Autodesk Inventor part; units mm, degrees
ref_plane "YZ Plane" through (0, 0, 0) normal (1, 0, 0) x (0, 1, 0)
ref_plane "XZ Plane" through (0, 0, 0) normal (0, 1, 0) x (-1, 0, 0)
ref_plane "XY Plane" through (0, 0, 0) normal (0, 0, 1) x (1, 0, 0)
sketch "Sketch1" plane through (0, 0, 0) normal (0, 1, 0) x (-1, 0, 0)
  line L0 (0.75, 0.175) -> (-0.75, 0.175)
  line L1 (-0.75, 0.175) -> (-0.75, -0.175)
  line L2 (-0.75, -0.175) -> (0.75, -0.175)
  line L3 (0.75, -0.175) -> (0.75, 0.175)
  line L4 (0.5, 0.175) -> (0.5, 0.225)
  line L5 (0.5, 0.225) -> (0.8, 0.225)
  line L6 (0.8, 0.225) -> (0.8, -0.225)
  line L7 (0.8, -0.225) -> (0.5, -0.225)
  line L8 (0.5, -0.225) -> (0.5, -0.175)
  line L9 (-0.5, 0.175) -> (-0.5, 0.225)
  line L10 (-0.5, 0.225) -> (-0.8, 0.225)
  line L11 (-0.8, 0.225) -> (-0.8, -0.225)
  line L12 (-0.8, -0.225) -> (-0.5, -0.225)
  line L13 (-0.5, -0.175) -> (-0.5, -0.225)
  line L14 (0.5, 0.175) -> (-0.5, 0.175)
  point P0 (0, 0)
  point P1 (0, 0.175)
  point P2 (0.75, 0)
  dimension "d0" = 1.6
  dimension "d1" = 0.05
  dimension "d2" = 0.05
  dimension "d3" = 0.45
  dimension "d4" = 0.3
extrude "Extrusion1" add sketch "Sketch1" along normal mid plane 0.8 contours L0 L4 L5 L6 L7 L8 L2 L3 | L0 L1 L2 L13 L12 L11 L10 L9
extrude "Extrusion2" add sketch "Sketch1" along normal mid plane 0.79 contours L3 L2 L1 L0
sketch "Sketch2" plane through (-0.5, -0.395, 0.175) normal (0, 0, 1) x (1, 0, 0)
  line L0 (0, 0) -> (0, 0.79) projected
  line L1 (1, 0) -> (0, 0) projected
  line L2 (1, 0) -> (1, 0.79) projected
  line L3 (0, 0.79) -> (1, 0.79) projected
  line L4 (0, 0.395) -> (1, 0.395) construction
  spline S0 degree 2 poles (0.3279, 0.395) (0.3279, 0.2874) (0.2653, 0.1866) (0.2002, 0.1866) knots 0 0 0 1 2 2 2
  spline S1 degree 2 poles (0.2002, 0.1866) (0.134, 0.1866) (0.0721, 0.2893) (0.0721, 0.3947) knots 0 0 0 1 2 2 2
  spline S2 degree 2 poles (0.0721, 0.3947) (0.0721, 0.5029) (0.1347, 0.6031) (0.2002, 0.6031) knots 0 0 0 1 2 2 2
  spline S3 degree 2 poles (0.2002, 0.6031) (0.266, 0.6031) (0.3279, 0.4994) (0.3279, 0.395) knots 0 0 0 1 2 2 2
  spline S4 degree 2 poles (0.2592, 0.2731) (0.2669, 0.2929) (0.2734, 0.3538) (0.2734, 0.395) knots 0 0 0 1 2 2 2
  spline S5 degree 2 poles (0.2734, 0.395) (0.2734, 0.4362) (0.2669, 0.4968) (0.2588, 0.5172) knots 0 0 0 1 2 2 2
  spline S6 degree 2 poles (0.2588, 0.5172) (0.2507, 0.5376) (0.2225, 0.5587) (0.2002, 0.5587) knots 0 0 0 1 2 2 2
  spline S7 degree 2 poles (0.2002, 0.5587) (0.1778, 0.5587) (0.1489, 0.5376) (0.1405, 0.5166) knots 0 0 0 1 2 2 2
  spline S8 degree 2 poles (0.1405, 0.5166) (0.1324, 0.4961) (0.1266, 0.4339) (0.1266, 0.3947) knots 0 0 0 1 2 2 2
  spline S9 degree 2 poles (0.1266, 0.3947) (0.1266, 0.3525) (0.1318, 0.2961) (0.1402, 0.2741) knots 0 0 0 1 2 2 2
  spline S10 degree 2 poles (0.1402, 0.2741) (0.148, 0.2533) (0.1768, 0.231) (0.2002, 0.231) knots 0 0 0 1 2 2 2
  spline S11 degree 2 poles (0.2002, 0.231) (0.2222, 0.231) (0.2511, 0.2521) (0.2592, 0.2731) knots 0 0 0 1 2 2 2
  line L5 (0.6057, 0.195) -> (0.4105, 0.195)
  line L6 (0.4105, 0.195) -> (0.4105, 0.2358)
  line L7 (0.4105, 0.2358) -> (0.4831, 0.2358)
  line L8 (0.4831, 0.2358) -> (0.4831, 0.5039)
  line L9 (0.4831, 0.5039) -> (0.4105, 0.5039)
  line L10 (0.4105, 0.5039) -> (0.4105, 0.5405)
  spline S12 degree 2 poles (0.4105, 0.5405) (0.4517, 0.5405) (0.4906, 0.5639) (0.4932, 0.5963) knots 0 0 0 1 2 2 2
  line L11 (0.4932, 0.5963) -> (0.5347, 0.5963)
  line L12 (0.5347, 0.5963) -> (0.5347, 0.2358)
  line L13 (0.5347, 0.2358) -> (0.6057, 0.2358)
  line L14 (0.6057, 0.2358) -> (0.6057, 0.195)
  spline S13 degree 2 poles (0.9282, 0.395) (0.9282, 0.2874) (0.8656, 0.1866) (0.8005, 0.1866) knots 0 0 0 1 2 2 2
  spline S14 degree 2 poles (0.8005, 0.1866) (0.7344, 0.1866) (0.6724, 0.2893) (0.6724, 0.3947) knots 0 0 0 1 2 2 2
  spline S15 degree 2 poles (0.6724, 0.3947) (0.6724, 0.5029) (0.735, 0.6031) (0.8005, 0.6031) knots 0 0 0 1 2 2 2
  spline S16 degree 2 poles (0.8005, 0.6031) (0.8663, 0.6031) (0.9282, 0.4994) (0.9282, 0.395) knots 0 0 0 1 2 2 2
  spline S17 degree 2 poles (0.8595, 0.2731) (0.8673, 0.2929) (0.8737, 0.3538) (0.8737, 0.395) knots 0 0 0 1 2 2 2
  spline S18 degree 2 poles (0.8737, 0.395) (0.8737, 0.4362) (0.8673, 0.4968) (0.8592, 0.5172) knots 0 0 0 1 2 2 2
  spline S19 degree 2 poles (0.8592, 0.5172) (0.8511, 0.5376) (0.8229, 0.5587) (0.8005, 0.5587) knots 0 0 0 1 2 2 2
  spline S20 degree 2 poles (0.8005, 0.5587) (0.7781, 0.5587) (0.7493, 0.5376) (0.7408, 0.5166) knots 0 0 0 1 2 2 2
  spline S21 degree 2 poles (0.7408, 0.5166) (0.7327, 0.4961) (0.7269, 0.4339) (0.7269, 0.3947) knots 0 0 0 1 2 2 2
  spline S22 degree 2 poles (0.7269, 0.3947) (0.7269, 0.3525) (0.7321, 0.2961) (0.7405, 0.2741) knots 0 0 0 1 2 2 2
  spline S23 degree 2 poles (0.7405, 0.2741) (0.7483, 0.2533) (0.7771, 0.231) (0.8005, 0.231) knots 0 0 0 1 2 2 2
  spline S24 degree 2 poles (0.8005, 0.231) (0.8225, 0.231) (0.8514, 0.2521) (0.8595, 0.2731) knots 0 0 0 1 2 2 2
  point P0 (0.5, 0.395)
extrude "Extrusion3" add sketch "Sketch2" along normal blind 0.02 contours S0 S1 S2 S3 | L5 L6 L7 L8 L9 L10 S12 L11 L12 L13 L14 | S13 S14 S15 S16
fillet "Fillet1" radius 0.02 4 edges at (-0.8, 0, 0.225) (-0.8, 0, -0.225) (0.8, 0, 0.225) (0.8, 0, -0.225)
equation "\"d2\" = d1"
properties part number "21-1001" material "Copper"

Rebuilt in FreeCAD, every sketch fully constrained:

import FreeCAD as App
import Part
import Sketcher

V = App.Vector


def edges_at(feature, points):
    """Names of the edges that pass closest to the given points."""
    edges = feature.Shape.Edges
    near = lambda p: min(range(len(edges)), key=lambda i: edges[i].distToShape(Part.Vertex(*p))[0])
    return sorted({f"Edge{near(p) + 1}" for p in points})

doc = App.newDocument("Part")
body = doc.addObject("PartDesign::Body", "Body")
body.AllowCompound = True

# Sketch on XZ plane
sketch1 = doc.addObject("Sketcher::SketchObject", "Sketch")
body.addObject(sketch1)
sketch1.AttachmentSupport = (doc.XZ_Plane, [""])
sketch1.MapMode = "FlatFace"
sketch1.addGeometry(Part.LineSegment(V(-0.5, 0.175, 0), V(-0.75, 0.175, 0)), False)
sketch1.addGeometry(Part.LineSegment(V(-0.75, 0.175, 0), V(-0.75, -0.175, 0)), False)
sketch1.addGeometry(Part.LineSegment(V(-0.75, -0.175, 0), V(-0.5, -0.175, 0)), False)
sketch1.addGeometry(Part.LineSegment(V(-0.5, -0.175, 0), V(-0.5, -0.225, 0)), False)
sketch1.addGeometry(Part.LineSegment(V(-0.5, -0.225, 0), V(-0.8, -0.225, 0)), False)
sketch1.addGeometry(Part.LineSegment(V(-0.8, -0.225, 0), V(-0.8, 0.225, 0)), False)
sketch1.addGeometry(Part.LineSegment(V(-0.8, 0.225, 0), V(-0.5, 0.225, 0)), False)
sketch1.addGeometry(Part.LineSegment(V(-0.5, 0.225, 0), V(-0.5, 0.175, 0)), False)
sketch1.addGeometry(Part.LineSegment(V(0.75, 0.175, 0), V(0.5, 0.175, 0)), False)
sketch1.addGeometry(Part.LineSegment(V(0.5, 0.175, 0), V(0.5, 0.225, 0)), False)
sketch1.addGeometry(Part.LineSegment(V(0.5, 0.225, 0), V(0.8, 0.225, 0)), False)
sketch1.addGeometry(Part.LineSegment(V(0.8, 0.225, 0), V(0.8, -0.225, 0)), False)
sketch1.addGeometry(Part.LineSegment(V(0.8, -0.225, 0), V(0.5, -0.225, 0)), False)
sketch1.addGeometry(Part.LineSegment(V(0.5, -0.225, 0), V(0.5, -0.175, 0)), False)
sketch1.addGeometry(Part.LineSegment(V(0.5, -0.175, 0), V(0.75, -0.175, 0)), False)
sketch1.addGeometry(Part.LineSegment(V(0.75, -0.175, 0), V(0.75, 0.175, 0)), False)
sketch1.addConstraint(Sketcher.Constraint("Coincident", 0, 2, 1, 1))
sketch1.addConstraint(Sketcher.Constraint("Coincident", 1, 2, 2, 1))
sketch1.addConstraint(Sketcher.Constraint("Coincident", 2, 2, 3, 1))
sketch1.addConstraint(Sketcher.Constraint("Coincident", 3, 2, 4, 1))
sketch1.addConstraint(Sketcher.Constraint("Coincident", 4, 2, 5, 1))
sketch1.addConstraint(Sketcher.Constraint("Coincident", 5, 2, 6, 1))
sketch1.addConstraint(Sketcher.Constraint("Coincident", 6, 2, 7, 1))
sketch1.addConstraint(Sketcher.Constraint("Coincident", 7, 2, 0, 1))
sketch1.addConstraint(Sketcher.Constraint("Coincident", 8, 2, 9, 1))
sketch1.addConstraint(Sketcher.Constraint("Coincident", 9, 2, 10, 1))
sketch1.addConstraint(Sketcher.Constraint("Coincident", 10, 2, 11, 1))
sketch1.addConstraint(Sketcher.Constraint("Coincident", 11, 2, 12, 1))
sketch1.addConstraint(Sketcher.Constraint("Coincident", 12, 2, 13, 1))
sketch1.addConstraint(Sketcher.Constraint("Coincident", 13, 2, 14, 1))
sketch1.addConstraint(Sketcher.Constraint("Coincident", 14, 2, 15, 1))
sketch1.addConstraint(Sketcher.Constraint("Coincident", 15, 2, 8, 1))
sketch1.addConstraint(Sketcher.Constraint("Horizontal", 0))
sketch1.addConstraint(Sketcher.Constraint("Vertical", 1))
sketch1.addConstraint(Sketcher.Constraint("Horizontal", 2))
sketch1.addConstraint(Sketcher.Constraint("Vertical", 3))
sketch1.addConstraint(Sketcher.Constraint("Horizontal", 4))
sketch1.addConstraint(Sketcher.Constraint("Vertical", 5))
sketch1.addConstraint(Sketcher.Constraint("Horizontal", 6))
sketch1.addConstraint(Sketcher.Constraint("Vertical", 7))
sketch1.addConstraint(Sketcher.Constraint("Horizontal", 8))
sketch1.addConstraint(Sketcher.Constraint("Vertical", 9))
sketch1.addConstraint(Sketcher.Constraint("Horizontal", 10))
sketch1.addConstraint(Sketcher.Constraint("Vertical", 11))
sketch1.addConstraint(Sketcher.Constraint("Horizontal", 12))
sketch1.addConstraint(Sketcher.Constraint("Vertical", 13))
sketch1.addConstraint(Sketcher.Constraint("Horizontal", 14))
sketch1.addConstraint(Sketcher.Constraint("Vertical", 15))
sketch1.addConstraint(Sketcher.Constraint("Symmetric", 2, 2, 8, 2, -1, 1))
sketch1.addConstraint(Sketcher.Constraint("Symmetric", 4, 2, 10, 2, -1, 1))
sketch1.addConstraint(Sketcher.Constraint("Symmetric", 6, 2, 12, 2, -1, 1))
sketch1.addConstraint(Sketcher.Constraint("Symmetric", 0, 2, 14, 2, -1, 1))
sketch1.addConstraint(Sketcher.Constraint("Symmetric", 7, 2, 8, 2, -2))
sketch1.addConstraint(Sketcher.Constraint("Horizontal", 6, 2, 9, 2))
sketch1.addConstraint(Sketcher.Constraint("DistanceX", 4, 2, 4, 1, 0.3))
sketch1.addConstraint(Sketcher.Constraint("DistanceY", 3, 2, 3, 1, 0.05))
sketch1.addConstraint(Sketcher.Constraint("DistanceY", 5, 1, 5, 2, 0.45))
sketch1.addConstraint(Sketcher.Constraint("DistanceX", 4, 2, 1, 2, 0.05))
sketch1.addConstraint(Sketcher.Constraint("DistanceX", 7, 2, 8, 2, 1.0))
pad1 = doc.addObject("PartDesign::Pad", "Pad")
body.addObject(pad1)
pad1.Profile = sketch1
pad1.Length = 0.8
pad1.Midplane = True

# Sketch on XZ plane
sketch2 = doc.addObject("Sketcher::SketchObject", "Sketch001")
body.addObject(sketch2)
sketch2.AttachmentSupport = (doc.XZ_Plane, [""])
sketch2.MapMode = "FlatFace"
sketch2.addGeometry(Part.LineSegment(V(-0.75, -0.175, 0), V(-0.75, 0.175, 0)), False)
sketch2.addGeometry(Part.LineSegment(V(-0.75, 0.175, 0), V(0.75, 0.175, 0)), False)
sketch2.addGeometry(Part.LineSegment(V(0.75, 0.175, 0), V(0.75, -0.175, 0)), False)
sketch2.addGeometry(Part.LineSegment(V(0.75, -0.175, 0), V(-0.75, -0.175, 0)), False)
sketch2.addConstraint(Sketcher.Constraint("Coincident", 0, 2, 1, 1))
sketch2.addConstraint(Sketcher.Constraint("Coincident", 1, 2, 2, 1))
sketch2.addConstraint(Sketcher.Constraint("Coincident", 2, 2, 3, 1))
sketch2.addConstraint(Sketcher.Constraint("Coincident", 3, 2, 0, 1))
sketch2.addConstraint(Sketcher.Constraint("Vertical", 0))
sketch2.addConstraint(Sketcher.Constraint("Horizontal", 1))
sketch2.addConstraint(Sketcher.Constraint("Vertical", 2))
sketch2.addConstraint(Sketcher.Constraint("Horizontal", 3))
sketch2.addConstraint(Sketcher.Constraint("Symmetric", 0, 2, 2, 2, -1, 1))
sketch2.addConstraint(Sketcher.Constraint("DistanceX", 1, 1, 1, 2, 1.5))
sketch2.addConstraint(Sketcher.Constraint("DistanceY", 0, 1, 0, 2, 0.35))
pad2 = doc.addObject("PartDesign::Pad", "Pad001")
body.addObject(pad2)
pad2.Profile = sketch2
pad2.Length = 0.79
pad2.Midplane = True

# Sketch on XY plane
sketch3 = doc.addObject("Sketcher::SketchObject", "Sketch002")
body.addObject(sketch3)
sketch3.AttachmentSupport = (doc.XY_Plane, [""])
sketch3.MapMode = "FlatFace"
sketch3.AttachmentOffset = App.Placement(V(0, 0, 0.175), App.Rotation())
sketch3.addGeometry(Part.BSplineCurve([V(-0.1721, 0, 0), V(-0.1721, -0.1076, 0), V(-0.2347, -0.2084, 0), V(-0.2998, -0.2084, 0)], [3, 1, 3], [0, 1, 2], False, 2, [1, 1, 1, 1], False), False)
sketch3.addGeometry(Part.BSplineCurve([V(-0.2998, 0.2081, 0), V(-0.234, 0.2081, 0), V(-0.1721, 0.1044, 0), V(-0.1721, 0, 0)], [3, 1, 3], [0, 1, 2], False, 2, [1, 1, 1, 1], False), False)
sketch3.addGeometry(Part.BSplineCurve([V(-0.4279, -0.0003, 0), V(-0.4279, 0.1079, 0), V(-0.3653, 0.2081, 0), V(-0.2998, 0.2081, 0)], [3, 1, 3], [0, 1, 2], False, 2, [1, 1, 1, 1], False), False)
sketch3.addGeometry(Part.BSplineCurve([V(-0.2998, -0.2084, 0), V(-0.366, -0.2084, 0), V(-0.4279, -0.1057, 0), V(-0.4279, -0.0003, 0)], [3, 1, 3], [0, 1, 2], False, 2, [1, 1, 1, 1], False), False)
sketch3.addGeometry(Part.BSplineCurve([V(-0.2408, -0.1219, 0), V(-0.2331, -0.1021, 0), V(-0.2266, -0.0412, 0), V(-0.2266, 0, 0)], [3, 1, 3], [0, 1, 2], False, 2, [1, 1, 1, 1], False), False)
sketch3.addGeometry(Part.BSplineCurve([V(-0.2998, -0.164, 0), V(-0.2778, -0.164, 0), V(-0.2489, -0.1429, 0), V(-0.2408, -0.1219, 0)], [3, 1, 3], [0, 1, 2], False, 2, [1, 1, 1, 1], False), False)
sketch3.addGeometry(Part.BSplineCurve([V(-0.3598, -0.1209, 0), V(-0.352, -0.1417, 0), V(-0.3232, -0.164, 0), V(-0.2998, -0.164, 0)], [3, 1, 3], [0, 1, 2], False, 2, [1, 1, 1, 1], False), False)
sketch3.addGeometry(Part.BSplineCurve([V(-0.3734, -0.0003, 0), V(-0.3734, -0.0425, 0), V(-0.3682, -0.0989, 0), V(-0.3598, -0.1209, 0)], [3, 1, 3], [0, 1, 2], False, 2, [1, 1, 1, 1], False), False)
sketch3.addGeometry(Part.BSplineCurve([V(-0.3595, 0.1216, 0), V(-0.3676, 0.1011, 0), V(-0.3734, 0.0389, 0), V(-0.3734, -0.0003, 0)], [3, 1, 3], [0, 1, 2], False, 2, [1, 1, 1, 1], False), False)
sketch3.addGeometry(Part.BSplineCurve([V(-0.2998, 0.1637, 0), V(-0.3222, 0.1637, 0), V(-0.3511, 0.1426, 0), V(-0.3595, 0.1216, 0)], [3, 1, 3], [0, 1, 2], False, 2, [1, 1, 1, 1], False), False)
sketch3.addGeometry(Part.BSplineCurve([V(-0.2412, 0.1222, 0), V(-0.2493, 0.1426, 0), V(-0.2775, 0.1637, 0), V(-0.2998, 0.1637, 0)], [3, 1, 3], [0, 1, 2], False, 2, [1, 1, 1, 1], False), False)
sketch3.addGeometry(Part.BSplineCurve([V(-0.2266, 0, 0), V(-0.2266, 0.0412, 0), V(-0.2331, 0.1018, 0), V(-0.2412, 0.1222, 0)], [3, 1, 3], [0, 1, 2], False, 2, [1, 1, 1, 1], False), False)
sketch3.addGeometry(Part.LineSegment(V(-0.0895, -0.2, 0), V(0.1057, -0.2, 0)), False)
sketch3.addGeometry(Part.LineSegment(V(0.1057, -0.2, 0), V(0.1057, -0.1592, 0)), False)
sketch3.addGeometry(Part.LineSegment(V(0.1057, -0.1592, 0), V(0.0347, -0.1592, 0)), False)
sketch3.addGeometry(Part.LineSegment(V(0.0347, -0.1592, 0), V(0.0347, 0.2013, 0)), False)
sketch3.addGeometry(Part.LineSegment(V(0.0347, 0.2013, 0), V(-0.0068, 0.2013, 0)), False)
sketch3.addGeometry(Part.BSplineCurve([V(-0.0895, 0.1455, 0), V(-0.0483, 0.1455, 0), V(-0.0094, 0.1689, 0), V(-0.0068, 0.2013, 0)], [3, 1, 3], [0, 1, 2], False, 2, [1, 1, 1, 1], False), False)
sketch3.addGeometry(Part.LineSegment(V(-0.0895, 0.1455, 0), V(-0.0895, 0.1089, 0)), False)
sketch3.addGeometry(Part.LineSegment(V(-0.0895, 0.1089, 0), V(-0.0169, 0.1089, 0)), False)
sketch3.addGeometry(Part.LineSegment(V(-0.0169, 0.1089, 0), V(-0.0169, -0.1592, 0)), False)
sketch3.addGeometry(Part.LineSegment(V(-0.0169, -0.1592, 0), V(-0.0895, -0.1592, 0)), False)
sketch3.addGeometry(Part.LineSegment(V(-0.0895, -0.1592, 0), V(-0.0895, -0.2, 0)), False)
sketch3.addGeometry(Part.BSplineCurve([V(0.4282, 0, 0), V(0.4282, -0.1076, 0), V(0.3656, -0.2084, 0), V(0.3005, -0.2084, 0)], [3, 1, 3], [0, 1, 2], False, 2, [1, 1, 1, 1], False), False)
sketch3.addGeometry(Part.BSplineCurve([V(0.3005, 0.2081, 0), V(0.3663, 0.2081, 0), V(0.4282, 0.1044, 0), V(0.4282, 0, 0)], [3, 1, 3], [0, 1, 2], False, 2, [1, 1, 1, 1], False), False)
sketch3.addGeometry(Part.BSplineCurve([V(0.1724, -0.0003, 0), V(0.1724, 0.1079, 0), V(0.235, 0.2081, 0), V(0.3005, 0.2081, 0)], [3, 1, 3], [0, 1, 2], False, 2, [1, 1, 1, 1], False), False)
sketch3.addGeometry(Part.BSplineCurve([V(0.3005, -0.2084, 0), V(0.2344, -0.2084, 0), V(0.1724, -0.1057, 0), V(0.1724, -0.0003, 0)], [3, 1, 3], [0, 1, 2], False, 2, [1, 1, 1, 1], False), False)
sketch3.addGeometry(Part.BSplineCurve([V(0.3595, -0.1219, 0), V(0.3673, -0.1021, 0), V(0.3737, -0.0412, 0), V(0.3737, 0, 0)], [3, 1, 3], [0, 1, 2], False, 2, [1, 1, 1, 1], False), False)
sketch3.addGeometry(Part.BSplineCurve([V(0.3005, -0.164, 0), V(0.3225, -0.164, 0), V(0.3514, -0.1429, 0), V(0.3595, -0.1219, 0)], [3, 1, 3], [0, 1, 2], False, 2, [1, 1, 1, 1], False), False)
sketch3.addGeometry(Part.BSplineCurve([V(0.2405, -0.1209, 0), V(0.2483, -0.1417, 0), V(0.2771, -0.164, 0), V(0.3005, -0.164, 0)], [3, 1, 3], [0, 1, 2], False, 2, [1, 1, 1, 1], False), False)
sketch3.addGeometry(Part.BSplineCurve([V(0.2269, -0.0003, 0), V(0.2269, -0.0425, 0), V(0.2321, -0.0989, 0), V(0.2405, -0.1209, 0)], [3, 1, 3], [0, 1, 2], False, 2, [1, 1, 1, 1], False), False)
sketch3.addGeometry(Part.BSplineCurve([V(0.2408, 0.1216, 0), V(0.2327, 0.1011, 0), V(0.2269, 0.0389, 0), V(0.2269, -0.0003, 0)], [3, 1, 3], [0, 1, 2], False, 2, [1, 1, 1, 1], False), False)
sketch3.addGeometry(Part.BSplineCurve([V(0.3005, 0.1637, 0), V(0.2781, 0.1637, 0), V(0.2493, 0.1426, 0), V(0.2408, 0.1216, 0)], [3, 1, 3], [0, 1, 2], False, 2, [1, 1, 1, 1], False), False)
sketch3.addGeometry(Part.BSplineCurve([V(0.3592, 0.1222, 0), V(0.3511, 0.1426, 0), V(0.3229, 0.1637, 0), V(0.3005, 0.1637, 0)], [3, 1, 3], [0, 1, 2], False, 2, [1, 1, 1, 1], False), False)
sketch3.addGeometry(Part.BSplineCurve([V(0.3737, 0, 0), V(0.3737, 0.0412, 0), V(0.3673, 0.1018, 0), V(0.3592, 0.1222, 0)], [3, 1, 3], [0, 1, 2], False, 2, [1, 1, 1, 1], False), False)
sketch3.addConstraint(Sketcher.Constraint("Block", 0))
sketch3.addConstraint(Sketcher.Constraint("Block", 1))
sketch3.addConstraint(Sketcher.Constraint("Block", 2))
sketch3.addConstraint(Sketcher.Constraint("Block", 3))
sketch3.addConstraint(Sketcher.Constraint("Block", 4))
sketch3.addConstraint(Sketcher.Constraint("Block", 5))
sketch3.addConstraint(Sketcher.Constraint("Block", 6))
sketch3.addConstraint(Sketcher.Constraint("Block", 7))
sketch3.addConstraint(Sketcher.Constraint("Block", 8))
sketch3.addConstraint(Sketcher.Constraint("Block", 9))
sketch3.addConstraint(Sketcher.Constraint("Block", 10))
sketch3.addConstraint(Sketcher.Constraint("Block", 11))
sketch3.addConstraint(Sketcher.Constraint("Block", 17))
sketch3.addConstraint(Sketcher.Constraint("Block", 23))
sketch3.addConstraint(Sketcher.Constraint("Block", 24))
sketch3.addConstraint(Sketcher.Constraint("Block", 25))
sketch3.addConstraint(Sketcher.Constraint("Block", 26))
sketch3.addConstraint(Sketcher.Constraint("Block", 27))
sketch3.addConstraint(Sketcher.Constraint("Block", 28))
sketch3.addConstraint(Sketcher.Constraint("Block", 29))
sketch3.addConstraint(Sketcher.Constraint("Block", 30))
sketch3.addConstraint(Sketcher.Constraint("Block", 31))
sketch3.addConstraint(Sketcher.Constraint("Block", 32))
sketch3.addConstraint(Sketcher.Constraint("Block", 33))
sketch3.addConstraint(Sketcher.Constraint("Block", 34))
sketch3.addConstraint(Sketcher.Constraint("Coincident", 12, 2, 13, 1))
sketch3.addConstraint(Sketcher.Constraint("Coincident", 13, 2, 14, 1))
sketch3.addConstraint(Sketcher.Constraint("Coincident", 14, 2, 15, 1))
sketch3.addConstraint(Sketcher.Constraint("Coincident", 15, 2, 16, 1))
sketch3.addConstraint(Sketcher.Constraint("Coincident", 16, 2, 17, 2))
sketch3.addConstraint(Sketcher.Constraint("Coincident", 17, 1, 18, 1))
sketch3.addConstraint(Sketcher.Constraint("Coincident", 18, 2, 19, 1))
sketch3.addConstraint(Sketcher.Constraint("Coincident", 19, 2, 20, 1))
sketch3.addConstraint(Sketcher.Constraint("Coincident", 20, 2, 21, 1))
sketch3.addConstraint(Sketcher.Constraint("Coincident", 21, 2, 22, 1))
sketch3.addConstraint(Sketcher.Constraint("Coincident", 22, 2, 12, 1))
sketch3.addConstraint(Sketcher.Constraint("Horizontal", 12))
sketch3.addConstraint(Sketcher.Constraint("Vertical", 13))
sketch3.addConstraint(Sketcher.Constraint("Horizontal", 14))
sketch3.addConstraint(Sketcher.Constraint("Vertical", 15))
sketch3.addConstraint(Sketcher.Constraint("Horizontal", 16))
sketch3.addConstraint(Sketcher.Constraint("Vertical", 18))
sketch3.addConstraint(Sketcher.Constraint("Horizontal", 19))
sketch3.addConstraint(Sketcher.Constraint("Vertical", 20))
sketch3.addConstraint(Sketcher.Constraint("Horizontal", 21))
sketch3.addConstraint(Sketcher.Constraint("Vertical", 22))
sketch3.addConstraint(Sketcher.Constraint("Horizontal", 14, 2, 20, 2))
sketch3.addConstraint(Sketcher.Constraint("Vertical", 18, 2, 21, 2))
sketch3.addConstraint(Sketcher.Constraint("DistanceY", 12, 2, -1, 1, 0.2))
sketch3.addConstraint(Sketcher.Constraint("DistanceX", 14, 2, 14, 1, 0.071))
sketch3.addConstraint(Sketcher.Constraint("DistanceY", 20, 2, 20, 1, 0.268))
sketch3.addConstraint(Sketcher.Constraint("DistanceX", 19, 2, 16, 2, 0.01))
sketch3.addConstraint(Sketcher.Constraint("DistanceX", 12, 1, 12, 2, 0.1952))
sketch3.addConstraint(Sketcher.Constraint("DistanceY", 13, 1, 13, 2, 0.0408))
pad3 = doc.addObject("PartDesign::Pad", "Pad002")
body.addObject(pad3)
pad3.Profile = sketch3
pad3.Length = 0.02
doc.recompute()

fillet = doc.addObject("PartDesign::Fillet", "Fillet")
body.addObject(fillet)
fillet.Base = (pad3, edges_at(pad3, [
    (-0.8, 0, 0.225),
    (-0.8, 0, -0.225),
    (0.8, 0, 0.225),
    (0.8, 0, -0.225),
]))
fillet.Radius = 0.02

doc.recompute()
